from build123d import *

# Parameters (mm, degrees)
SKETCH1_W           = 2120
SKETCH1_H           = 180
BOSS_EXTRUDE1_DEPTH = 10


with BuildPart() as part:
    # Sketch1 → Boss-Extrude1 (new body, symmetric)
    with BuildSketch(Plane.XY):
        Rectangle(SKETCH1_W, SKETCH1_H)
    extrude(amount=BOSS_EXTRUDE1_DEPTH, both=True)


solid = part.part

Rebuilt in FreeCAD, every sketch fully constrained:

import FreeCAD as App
import Part
import Sketcher

V = App.Vector
Q = App.Units.Quantity

doc = App.newDocument("Part")
body = doc.addObject("PartDesign::Body", "Body")

sketch1 = doc.addObject("Sketcher::SketchObject", "Sketch")
body.addObject(sketch1)
sketch1.AttachmentSupport = (doc.XY_Plane, [""])
sketch1.MapMode = "FlatFace"
sketch1.addGeometry([
    Part.LineSegment(V(-1060, 90, 0), V(-1060, -90, 0)),
    Part.LineSegment(V(-1060, -90, 0), V(1060, -90, 0)),
    Part.LineSegment(V(1060, -90, 0), V(1060, 90, 0)),
    Part.LineSegment(V(1060, 90, 0), V(-1060, 90, 0)),
], False)
sketch1.addConstraint([
    Sketcher.Constraint("Coincident", 0, 2, 1, 1),
    Sketcher.Constraint("Coincident", 1, 2, 2, 1),
    Sketcher.Constraint("Coincident", 2, 2, 3, 1),
    Sketcher.Constraint("Coincident", 3, 2, 0, 1),
    Sketcher.Constraint("Vertical", 0),
    Sketcher.Constraint("Horizontal", 1),
    Sketcher.Constraint("Vertical", 2),
    Sketcher.Constraint("Horizontal", 3),
    Sketcher.Constraint("Symmetric", 0, 2, 2, 2, -1, 1),
    Sketcher.Constraint("DistanceX", 1, 1, 1, 2, Q("2120 mm")),
    Sketcher.Constraint("DistanceY", 0, 2, 0, 1, Q("180 mm")),
])
pad1 = doc.addObject("PartDesign::Pad", "Pad")
body.addObject(pad1)
pad1.Profile = sketch1
pad1.Length = 20
pad1.Midplane = True

doc.recompute()
